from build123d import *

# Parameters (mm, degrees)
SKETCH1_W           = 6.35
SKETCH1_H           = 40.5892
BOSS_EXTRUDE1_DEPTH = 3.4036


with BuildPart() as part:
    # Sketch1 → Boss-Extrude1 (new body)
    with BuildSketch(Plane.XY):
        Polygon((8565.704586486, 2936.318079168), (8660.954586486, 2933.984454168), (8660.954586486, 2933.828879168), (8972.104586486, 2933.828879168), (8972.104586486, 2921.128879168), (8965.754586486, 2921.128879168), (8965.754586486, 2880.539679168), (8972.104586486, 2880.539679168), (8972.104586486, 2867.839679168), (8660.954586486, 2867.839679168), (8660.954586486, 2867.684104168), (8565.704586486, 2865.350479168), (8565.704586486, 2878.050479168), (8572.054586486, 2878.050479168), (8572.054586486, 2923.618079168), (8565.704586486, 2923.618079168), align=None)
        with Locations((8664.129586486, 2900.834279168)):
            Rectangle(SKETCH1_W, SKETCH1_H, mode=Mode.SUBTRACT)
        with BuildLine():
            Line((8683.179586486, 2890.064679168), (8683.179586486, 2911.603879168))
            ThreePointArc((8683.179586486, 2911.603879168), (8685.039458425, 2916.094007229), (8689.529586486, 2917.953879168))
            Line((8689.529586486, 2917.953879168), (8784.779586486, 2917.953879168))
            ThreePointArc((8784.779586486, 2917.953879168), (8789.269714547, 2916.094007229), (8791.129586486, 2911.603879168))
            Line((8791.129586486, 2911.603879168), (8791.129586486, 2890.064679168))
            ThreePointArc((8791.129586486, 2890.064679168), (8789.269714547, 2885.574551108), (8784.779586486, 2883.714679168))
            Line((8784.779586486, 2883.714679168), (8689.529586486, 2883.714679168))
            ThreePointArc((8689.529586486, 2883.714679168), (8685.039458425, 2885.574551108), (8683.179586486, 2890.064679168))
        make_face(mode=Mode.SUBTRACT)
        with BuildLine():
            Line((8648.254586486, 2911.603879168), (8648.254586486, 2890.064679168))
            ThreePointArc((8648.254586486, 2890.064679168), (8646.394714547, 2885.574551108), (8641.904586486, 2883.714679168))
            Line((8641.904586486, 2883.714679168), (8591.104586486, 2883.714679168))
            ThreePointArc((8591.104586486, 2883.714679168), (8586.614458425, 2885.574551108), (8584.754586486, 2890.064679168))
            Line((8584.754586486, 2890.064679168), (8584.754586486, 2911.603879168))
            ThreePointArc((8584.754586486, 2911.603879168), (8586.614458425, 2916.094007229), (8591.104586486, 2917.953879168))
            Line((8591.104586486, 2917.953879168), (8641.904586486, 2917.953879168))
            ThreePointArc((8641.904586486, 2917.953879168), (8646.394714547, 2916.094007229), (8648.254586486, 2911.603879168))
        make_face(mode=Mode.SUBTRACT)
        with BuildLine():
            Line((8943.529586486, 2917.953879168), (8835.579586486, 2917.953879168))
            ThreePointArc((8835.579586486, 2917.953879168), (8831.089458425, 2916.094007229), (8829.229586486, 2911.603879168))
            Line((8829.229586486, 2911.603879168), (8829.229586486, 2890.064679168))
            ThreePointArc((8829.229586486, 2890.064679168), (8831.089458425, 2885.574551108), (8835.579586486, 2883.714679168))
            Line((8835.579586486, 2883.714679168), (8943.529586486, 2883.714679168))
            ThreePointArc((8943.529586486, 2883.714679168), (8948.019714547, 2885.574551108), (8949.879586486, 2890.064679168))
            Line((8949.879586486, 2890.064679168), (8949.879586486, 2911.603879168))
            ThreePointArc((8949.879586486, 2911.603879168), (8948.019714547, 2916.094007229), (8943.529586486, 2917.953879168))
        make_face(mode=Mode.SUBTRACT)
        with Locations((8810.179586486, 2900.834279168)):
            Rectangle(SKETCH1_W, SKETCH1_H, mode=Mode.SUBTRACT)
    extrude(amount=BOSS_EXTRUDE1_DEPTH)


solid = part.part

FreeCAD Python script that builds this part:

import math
import FreeCAD as App
import Part
import Sketcher
Q = App.Units.Quantity

doc = App.newDocument("Part")
body = doc.addObject("PartDesign::Body", "Body")

sketch1 = doc.addObject("Sketcher::SketchObject", "Sketch")
body.addObject(sketch1)
sketch1.AttachmentSupport = (doc.XY_Plane, [""])
sketch1.MapMode = "FlatFace"
sketch1.addGeometry([
    Part.LineSegment(App.Vector(8660.95, 2933.98, 0), App.Vector(8565.7, 2936.32, 0)),
    Part.LineSegment(App.Vector(8565.7, 2936.32, 0), App.Vector(8565.7, 2923.62, 0)),
    Part.LineSegment(App.Vector(8565.7, 2923.62, 0), App.Vector(8572.05, 2923.62, 0)),
    Part.LineSegment(App.Vector(8572.05, 2923.62, 0), App.Vector(8572.05, 2878.05, 0)),
    Part.LineSegment(App.Vector(8572.05, 2878.05, 0), App.Vector(8565.7, 2878.05, 0)),
    Part.LineSegment(App.Vector(8565.7, 2878.05, 0), App.Vector(8565.7, 2865.35, 0)),
    Part.LineSegment(App.Vector(8565.7, 2865.35, 0), App.Vector(8660.95, 2867.68, 0)),
    Part.LineSegment(App.Vector(8660.95, 2867.68, 0), App.Vector(8660.95, 2867.84, 0)),
    Part.LineSegment(App.Vector(8660.95, 2867.84, 0), App.Vector(8972.1, 2867.84, 0)),
    Part.LineSegment(App.Vector(8972.1, 2867.84, 0), App.Vector(8972.1, 2880.54, 0)),
    Part.LineSegment(App.Vector(8972.1, 2880.54, 0), App.Vector(8965.75, 2880.54, 0)),
    Part.LineSegment(App.Vector(8965.75, 2880.54, 0), App.Vector(8965.75, 2921.13, 0)),
    Part.LineSegment(App.Vector(8965.75, 2921.13, 0), App.Vector(8972.1, 2921.13, 0)),
    Part.LineSegment(App.Vector(8972.1, 2921.13, 0), App.Vector(8972.1, 2933.83, 0)),
    Part.LineSegment(App.Vector(8972.1, 2933.83, 0), App.Vector(8660.95, 2933.83, 0)),
    Part.LineSegment(App.Vector(8660.95, 2933.83, 0), App.Vector(8660.95, 2933.98, 0)),
    Part.ArcOfCircle(Part.Circle(App.Vector(8943.53, 2911.6, 0), App.Vector(0, 0, 1), 6.35), math.radians(0), math.radians(90)),
    Part.LineSegment(App.Vector(8949.88, 2911.6, 0), App.Vector(8949.88, 2890.06, 0)),
    Part.ArcOfCircle(Part.Circle(App.Vector(8943.53, 2890.06, 0), App.Vector(0, 0, 1), 6.35), math.radians(-90), math.radians(0)),
    Part.LineSegment(App.Vector(8943.53, 2883.71, 0), App.Vector(8835.58, 2883.71, 0)),
    Part.ArcOfCircle(Part.Circle(App.Vector(8835.58, 2890.06, 0), App.Vector(0, 0, 1), 6.35), math.radians(180), math.radians(270)),
    Part.LineSegment(App.Vector(8829.23, 2890.06, 0), App.Vector(8829.23, 2911.6, 0)),
    Part.ArcOfCircle(Part.Circle(App.Vector(8835.58, 2911.6, 0), App.Vector(0, 0, 1), 6.35), math.radians(90), math.radians(180)),
    Part.LineSegment(App.Vector(8835.58, 2917.95, 0), App.Vector(8943.53, 2917.95, 0)),
    Part.LineSegment(App.Vector(8683.18, 2890.06, 0), App.Vector(8683.18, 2911.6, 0)),
    Part.ArcOfCircle(Part.Circle(App.Vector(8689.53, 2911.6, 0), App.Vector(0, 0, 1), 6.35), math.radians(90), math.radians(180)),
    Part.LineSegment(App.Vector(8689.53, 2917.95, 0), App.Vector(8784.78, 2917.95, 0)),
    Part.ArcOfCircle(Part.Circle(App.Vector(8784.78, 2911.6, 0), App.Vector(0, 0, 1), 6.35), math.radians(0), math.radians(90)),
    Part.LineSegment(App.Vector(8791.13, 2911.6, 0), App.Vector(8791.13, 2890.06, 0)),
    Part.ArcOfCircle(Part.Circle(App.Vector(8784.78, 2890.06, 0), App.Vector(0, 0, 1), 6.35), math.radians(-90), math.radians(0)),
    Part.LineSegment(App.Vector(8784.78, 2883.71, 0), App.Vector(8689.53, 2883.71, 0)),
    Part.ArcOfCircle(Part.Circle(App.Vector(8689.53, 2890.06, 0), App.Vector(0, 0, 1), 6.35), math.radians(180), math.radians(270)),
    Part.LineSegment(App.Vector(8648.25, 2911.6, 0), App.Vector(8648.25, 2890.06, 0)),
    Part.ArcOfCircle(Part.Circle(App.Vector(8641.9, 2890.06, 0), App.Vector(0, 0, 1), 6.35), math.radians(-90), math.radians(0)),
    Part.LineSegment(App.Vector(8641.9, 2883.71, 0), App.Vector(8591.1, 2883.71, 0)),
    Part.ArcOfCircle(Part.Circle(App.Vector(8591.1, 2890.06, 0), App.Vector(0, 0, 1), 6.35), math.radians(180), math.radians(270)),
    Part.LineSegment(App.Vector(8584.75, 2890.06, 0), App.Vector(8584.75, 2911.6, 0)),
    Part.ArcOfCircle(Part.Circle(App.Vector(8591.1, 2911.6, 0), App.Vector(0, 0, 1), 6.35), math.radians(90), math.radians(180)),
    Part.LineSegment(App.Vector(8591.1, 2917.95, 0), App.Vector(8641.9, 2917.95, 0)),
    Part.ArcOfCircle(Part.Circle(App.Vector(8641.9, 2911.6, 0), App.Vector(0, 0, 1), 6.35), math.radians(0), math.radians(90)),
    Part.LineSegment(App.Vector(8807, 2880.54, 0), App.Vector(8807, 2921.13, 0)),
    Part.LineSegment(App.Vector(8807, 2921.13, 0), App.Vector(8813.35, 2921.13, 0)),
    Part.LineSegment(App.Vector(8813.35, 2921.13, 0), App.Vector(8813.35, 2880.54, 0)),
    Part.LineSegment(App.Vector(8813.35, 2880.54, 0), App.Vector(8807, 2880.54, 0)),
    Part.LineSegment(App.Vector(8660.95, 2880.54, 0), App.Vector(8660.95, 2921.13, 0)),
    Part.LineSegment(App.Vector(8660.95, 2921.13, 0), App.Vector(8667.3, 2921.13, 0)),
    Part.LineSegment(App.Vector(8667.3, 2921.13, 0), App.Vector(8667.3, 2880.54, 0)),
    Part.LineSegment(App.Vector(8667.3, 2880.54, 0), App.Vector(8660.95, 2880.54, 0)),
], False)
sketch1.addConstraint([
    Sketcher.Constraint("Coincident", 0, 2, 1, 1),
    Sketcher.Constraint("Coincident", 1, 2, 2, 1),
    Sketcher.Constraint("Coincident", 2, 2, 3, 1),
    Sketcher.Constraint("Coincident", 3, 2, 4, 1),
    Sketcher.Constraint("Coincident", 4, 2, 5, 1),
    Sketcher.Constraint("Coincident", 5, 2, 6, 1),
    Sketcher.Constraint("Coincident", 6, 2, 7, 1),
    Sketcher.Constraint("Coincident", 7, 2, 8, 1),
    Sketcher.Constraint("Coincident", 8, 2, 9, 1),
    Sketcher.Constraint("Coincident", 9, 2, 10, 1),
    Sketcher.Constraint("Coincident", 10, 2, 11, 1),
    Sketcher.Constraint("Coincident", 11, 2, 12, 1),
    Sketcher.Constraint("Coincident", 12, 2, 13, 1),
    Sketcher.Constraint("Coincident", 13, 2, 14, 1),
    Sketcher.Constraint("Coincident", 14, 2, 15, 1),
    Sketcher.Constraint("Coincident", 15, 2, 0, 1),
    Sketcher.Constraint("Tangent", 16, 1, 17, 1),
    Sketcher.Constraint("Tangent", 17, 2, 18, 2),
    Sketcher.Constraint("Tangent", 18, 1, 19, 1),
    Sketcher.Constraint("Tangent", 19, 2, 20, 2),
    Sketcher.Constraint("Tangent", 20, 1, 21, 1),
    Sketcher.Constraint("Tangent", 21, 2, 22, 2),
    Sketcher.Constraint("Tangent", 22, 1, 23, 1),
    Sketcher.Constraint("Tangent", 23, 2, 16, 2),
    Sketcher.Constraint("Tangent", 24, 2, 25, 2),
    Sketcher.Constraint("Tangent", 25, 1, 26, 1),
    Sketcher.Constraint("Tangent", 26, 2, 27, 2),
    Sketcher.Constraint("Tangent", 27, 1, 28, 1),
    Sketcher.Constraint("Tangent", 28, 2, 29, 2),
    Sketcher.Constraint("Tangent", 29, 1, 30, 1),
    Sketcher.Constraint("Tangent", 30, 2, 31, 2),
    Sketcher.Constraint("Tangent", 31, 1, 24, 1),
    Sketcher.Constraint("Tangent", 32, 2, 33, 2),
    Sketcher.Constraint("Tangent", 33, 1, 34, 1),
    Sketcher.Constraint("Tangent", 34, 2, 35, 2),
    Sketcher.Constraint("Tangent", 35, 1, 36, 1),
    Sketcher.Constraint("Tangent", 36, 2, 37, 2),
    Sketcher.Constraint("Tangent", 37, 1, 38, 1),
    Sketcher.Constraint("Tangent", 38, 2, 39, 2),
    Sketcher.Constraint("Tangent", 39, 1, 32, 1),
    Sketcher.Constraint("Coincident", 40, 2, 41, 1),
    Sketcher.Constraint("Coincident", 41, 2, 42, 1),
    Sketcher.Constraint("Coincident", 42, 2, 43, 1),
    Sketcher.Constraint("Coincident", 43, 2, 40, 1),
    Sketcher.Constraint("Coincident", 44, 2, 45, 1),
    Sketcher.Constraint("Coincident", 45, 2, 46, 1),
    Sketcher.Constraint("Coincident", 46, 2, 47, 1),
    Sketcher.Constraint("Coincident", 47, 2, 44, 1),
    Sketcher.Constraint("Vertical", 1),
    Sketcher.Constraint("Horizontal", 2),
    Sketcher.Constraint("Vertical", 3),
    Sketcher.Constraint("Horizontal", 4),
    Sketcher.Constraint("Vertical", 5),
    Sketcher.Constraint("Vertical", 7),
    Sketcher.Constraint("Horizontal", 8),
    Sketcher.Constraint("Vertical", 9),
    Sketcher.Constraint("Horizontal", 10),
    Sketcher.Constraint("Vertical", 11),
    Sketcher.Constraint("Horizontal", 12),
    Sketcher.Constraint("Vertical", 13),
    Sketcher.Constraint("Horizontal", 14),
    Sketcher.Constraint("Vertical", 15),
    Sketcher.Constraint("Vertical", 17),
    Sketcher.Constraint("Horizontal", 19),
    Sketcher.Constraint("Vertical", 21),
    Sketcher.Constraint("Horizontal", 23),
    Sketcher.Constraint("Vertical", 24),
    Sketcher.Constraint("Horizontal", 26),
    Sketcher.Constraint("Vertical", 28),
    Sketcher.Constraint("Horizontal", 30),
    Sketcher.Constraint("Vertical", 32),
    Sketcher.Constraint("Horizontal", 34),
    Sketcher.Constraint("Vertical", 36),
    Sketcher.Constraint("Horizontal", 38),
    Sketcher.Constraint("Vertical", 40),
    Sketcher.Constraint("Horizontal", 41),
    Sketcher.Constraint("Vertical", 42),
    Sketcher.Constraint("Horizontal", 43),
    Sketcher.Constraint("Vertical", 44),
    Sketcher.Constraint("Horizontal", 45),
    Sketcher.Constraint("Vertical", 46),
    Sketcher.Constraint("Horizontal", 47),
    Sketcher.Constraint("Equal", 16, 18),
    Sketcher.Constraint("Equal", 18, 20),
    Sketcher.Constraint("Equal", 20, 22),
    Sketcher.Constraint("Equal", 22, 25),
    Sketcher.Constraint("Equal", 25, 27),
    Sketcher.Constraint("Equal", 27, 29),
    Sketcher.Constraint("Equal", 29, 31),
    Sketcher.Constraint("Equal", 31, 33),
    Sketcher.Constraint("Equal", 33, 35),
    Sketcher.Constraint("Equal", 35, 37),
    Sketcher.Constraint("Equal", 37, 39),
    Sketcher.Constraint("Horizontal", 22, 3, 25, 3),
    Sketcher.Constraint("Horizontal", 20, 3, 29, 3),
    Sketcher.Constraint("Horizontal", 31, 3, 33, 3),
    Sketcher.Constraint("Horizontal", 27, 3, 37, 3),
    Sketcher.Constraint("Horizontal", 12, 2, 40, 2),
    Sketcher.Constraint("Horizontal", 10, 2, 42, 2),
    Sketcher.Constraint("Horizontal", 41, 2, 44, 2),
    Sketcher.Constraint("Horizontal", 43, 2, 46, 2),
    Sketcher.Constraint("Vertical", 1, 2, 4, 2),
    Sketcher.Constraint("Vertical", 9, 2, 12, 2),
    Sketcher.Constraint("Vertical", 7, 2, 14, 2),
    Sketcher.Constraint("Vertical", 15, 2, 44, 2),
    Sketcher.Constraint("Equal", 4, 10),
    Sketcher.Constraint("Equal", 12, 41),
    Sketcher.Constraint("Equal", 43, 45),
    Sketcher.Constraint("Equal", 1, 5),
    Sketcher.Constraint("Equal", 5, 9),
    Sketcher.Constraint("Equal", 9, 13),
    Sketcher.Constraint("Equal", 7, 15),
    Sketcher.Constraint("Equal", 0, 6),
    Sketcher.Constraint("DistanceX", 34, 2, 34, 1, Q("2 in")),
    Sketcher.Constraint("Radius", 16, Q("0.25 in")),
    Sketcher.Constraint("DistanceY", 1, 2, 1, 1, Q("0.5 in")),
    Sketcher.Constraint("DistanceX", 25, 3, 16, 3, Q("10 in")),
    Sketcher.Constraint("DistanceX", 27, 3, 22, 3, Q("2 in")),
    Sketcher.Constraint("DistanceX", 0, 2, 37, 3, Q("1 in")),
    Sketcher.Constraint("DistanceX", 2, 1, 2, 2, Q("0.25 in")),
    Sketcher.Constraint("DistanceX", 8, 1, 8, 2, Q("12.25 in")),
    Sketcher.Constraint("DistanceX", 19, 2, 19, 1, Q("4.25 in")),
    Sketcher.Constraint("DistanceX", 32, 2, 7, 2, Q("0.5 in")),
    Sketcher.Constraint("DistanceY", 3, 2, 3, 1, Q("1.794 in")),
    Sketcher.Constraint("DistanceY", 11, 1, 11, 2, Q("1.598 in")),
    Sketcher.Constraint("DistanceY", 17, 2, 17, 1, Q("0.848 in")),
    Sketcher.Constraint("DistanceX", 33, 3, 31, 3, Q("1.875 in")),
    Sketcher.Constraint("DistanceY", 37, 3, 0, 2, Q("0.973 in")),
    Sketcher.Constraint("DistanceX", 27, 1, 40, 2, Q("0.625 in")),
    Sketcher.Constraint("DistanceY", 7, 1, 7, 2, Q("0.155575 mm")),
    Sketcher.Constraint("DistanceY", -1, 1, 16, 3, Q("2911.603879 mm")),
    Sketcher.Constraint("DistanceX", -1, 1, 16, 3, Q("8943.529586 mm")),
])
pad1 = doc.addObject("PartDesign::Pad", "Pad")
body.addObject(pad1)
pad1.Profile = sketch1
pad1.Length = Q("0.134 in")

doc.recompute()
